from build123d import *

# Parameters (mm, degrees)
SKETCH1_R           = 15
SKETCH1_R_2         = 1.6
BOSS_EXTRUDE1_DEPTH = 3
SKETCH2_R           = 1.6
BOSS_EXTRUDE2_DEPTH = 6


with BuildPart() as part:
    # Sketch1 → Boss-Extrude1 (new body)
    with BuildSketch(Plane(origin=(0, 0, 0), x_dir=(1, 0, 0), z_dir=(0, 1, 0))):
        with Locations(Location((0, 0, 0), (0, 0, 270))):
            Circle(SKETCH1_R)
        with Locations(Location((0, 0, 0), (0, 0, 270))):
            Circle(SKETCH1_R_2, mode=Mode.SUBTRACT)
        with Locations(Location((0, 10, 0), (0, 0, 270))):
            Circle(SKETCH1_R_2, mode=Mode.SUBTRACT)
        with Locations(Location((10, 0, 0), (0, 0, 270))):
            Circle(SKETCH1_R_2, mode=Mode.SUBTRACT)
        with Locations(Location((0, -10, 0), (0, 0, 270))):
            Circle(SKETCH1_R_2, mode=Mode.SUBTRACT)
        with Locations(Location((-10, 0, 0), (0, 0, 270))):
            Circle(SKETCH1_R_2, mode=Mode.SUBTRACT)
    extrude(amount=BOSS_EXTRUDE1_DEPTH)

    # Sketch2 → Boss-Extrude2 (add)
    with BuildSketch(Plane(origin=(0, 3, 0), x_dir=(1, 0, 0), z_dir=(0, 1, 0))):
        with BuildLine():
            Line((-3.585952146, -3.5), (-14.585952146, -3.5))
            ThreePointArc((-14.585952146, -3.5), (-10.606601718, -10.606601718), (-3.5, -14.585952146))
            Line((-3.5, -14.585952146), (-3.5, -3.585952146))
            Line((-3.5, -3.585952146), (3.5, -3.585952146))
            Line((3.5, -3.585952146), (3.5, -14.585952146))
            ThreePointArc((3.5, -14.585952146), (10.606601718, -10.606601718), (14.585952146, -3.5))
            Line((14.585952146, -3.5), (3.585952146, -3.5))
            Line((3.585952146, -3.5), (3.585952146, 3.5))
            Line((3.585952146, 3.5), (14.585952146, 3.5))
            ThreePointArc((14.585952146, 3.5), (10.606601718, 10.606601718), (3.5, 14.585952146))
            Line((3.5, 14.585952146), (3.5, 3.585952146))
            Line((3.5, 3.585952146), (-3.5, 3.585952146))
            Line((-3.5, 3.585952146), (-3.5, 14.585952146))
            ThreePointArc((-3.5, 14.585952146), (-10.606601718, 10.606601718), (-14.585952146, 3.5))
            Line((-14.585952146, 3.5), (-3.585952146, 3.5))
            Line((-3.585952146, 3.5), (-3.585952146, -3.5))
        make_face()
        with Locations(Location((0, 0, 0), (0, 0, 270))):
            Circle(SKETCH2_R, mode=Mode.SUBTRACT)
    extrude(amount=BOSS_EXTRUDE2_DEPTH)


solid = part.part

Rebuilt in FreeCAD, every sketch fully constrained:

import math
import FreeCAD as App
import Part
import Sketcher

doc = App.newDocument("Part")
body = doc.addObject("PartDesign::Body", "Body")

# Sketch on XZ plane
sketch1 = body.newObject("Sketcher::SketchObject", "Sketch")
sketch1.AttachmentSupport = (doc.getObject("XZ_Plane"), [""])
sketch1.MapMode = "FlatFace"
sketch1.addGeometry(Part.Circle(App.Vector(0, 0, 0), App.Vector(0, 0, 1), 15), False)
sketch1.addGeometry(Part.Circle(App.Vector(0, -10, 0), App.Vector(0, 0, 1), 1.6), False)
sketch1.addGeometry(Part.Circle(App.Vector(-10, 0, 0), App.Vector(0, 0, 1), 1.6), False)
sketch1.addGeometry(Part.Circle(App.Vector(10, 0, 0), App.Vector(0, 0, 1), 1.6), False)
sketch1.addGeometry(Part.Circle(App.Vector(0, 0, 0), App.Vector(0, 0, 1), 1.6), False)
sketch1.addGeometry(Part.Circle(App.Vector(0, 10, 0), App.Vector(0, 0, 1), 1.6), False)
sketch1.addConstraint(Sketcher.Constraint("Coincident", 0, 3, -1, 1))
sketch1.addConstraint(Sketcher.Constraint("Coincident", 4, 3, -1, 1))
sketch1.addConstraint(Sketcher.Constraint("Equal", 1, 2))
sketch1.addConstraint(Sketcher.Constraint("Equal", 2, 3))
sketch1.addConstraint(Sketcher.Constraint("Equal", 3, 4))
sketch1.addConstraint(Sketcher.Constraint("Equal", 4, 5))
sketch1.addConstraint(Sketcher.Constraint("Symmetric", 2, 3, 3, 3, -1, 1))
sketch1.addConstraint(Sketcher.Constraint("Symmetric", 1, 3, 5, 3, -1, 1))
sketch1.addConstraint(Sketcher.Constraint("PointOnObject", 1, 3, -2))
sketch1.addConstraint(Sketcher.Constraint("PointOnObject", 2, 3, -1))
sketch1.addConstraint(Sketcher.Constraint("Diameter", 0, 30.0))
sketch1.addConstraint(Sketcher.Constraint("Diameter", 1, 3.2))
sketch1.addConstraint(Sketcher.Constraint("DistanceY", 1, 3, -1, 1, 10.0))
sketch1.addConstraint(Sketcher.Constraint("DistanceX", 2, 3, -1, 1, 10.0))
pad1 = body.newObject("PartDesign::Pad", "Pad")
pad1.Profile = sketch1
pad1.Length = 3
pad1.Reversed = True

# Sketch on XZ plane
sketch2 = body.newObject("Sketcher::SketchObject", "Sketch001")
sketch2.AttachmentSupport = (doc.getObject("XZ_Plane"), [""])
sketch2.MapMode = "FlatFace"
sketch2.AttachmentOffset = App.Placement(App.Vector(0, 0, -3), App.Rotation())
sketch2.addGeometry(Part.LineSegment(App.Vector(-3.585952, 3.5, 0), App.Vector(-14.585952, 3.5, 0)), False)
sketch2.addGeometry(Part.ArcOfCircle(Part.Circle(App.Vector(0, 0, 0), App.Vector(0, 0, 1), 15), math.radians(103.493399), math.radians(166.506601)), False)
sketch2.addGeometry(Part.LineSegment(App.Vector(-3.5, 14.585952, 0), App.Vector(-3.5, 3.585952, 0)), False)
sketch2.addGeometry(Part.LineSegment(App.Vector(-3.5, 3.585952, 0), App.Vector(3.5, 3.585952, 0)), False)
sketch2.addGeometry(Part.LineSegment(App.Vector(3.5, 3.585952, 0), App.Vector(3.5, 14.585952, 0)), False)
sketch2.addGeometry(Part.ArcOfCircle(Part.Circle(App.Vector(0, 0, 0), App.Vector(0, 0, 1), 15), math.radians(13.493399), math.radians(76.506601)), False)
sketch2.addGeometry(Part.LineSegment(App.Vector(14.585952, 3.5, 0), App.Vector(3.585952, 3.5, 0)), False)
sketch2.addGeometry(Part.LineSegment(App.Vector(3.585952, 3.5, 0), App.Vector(3.585952, -3.5, 0)), False)
sketch2.addGeometry(Part.LineSegment(App.Vector(3.585952, -3.5, 0), App.Vector(14.585952, -3.5, 0)), False)
sketch2.addGeometry(Part.ArcOfCircle(Part.Circle(App.Vector(0, 0, 0), App.Vector(0, 0, 1), 15), math.radians(-76.506601), math.radians(-13.493399)), False)
sketch2.addGeometry(Part.LineSegment(App.Vector(3.5, -14.585952, 0), App.Vector(3.5, -3.585952, 0)), False)
sketch2.addGeometry(Part.LineSegment(App.Vector(3.5, -3.585952, 0), App.Vector(-3.5, -3.585952, 0)), False)
sketch2.addGeometry(Part.LineSegment(App.Vector(-3.5, -3.585952, 0), App.Vector(-3.5, -14.585952, 0)), False)
sketch2.addGeometry(Part.ArcOfCircle(Part.Circle(App.Vector(0, 0, 0), App.Vector(0, 0, 1), 15), math.radians(-166.506601), math.radians(-103.493399)), False)
sketch2.addGeometry(Part.LineSegment(App.Vector(-14.585952, -3.5, 0), App.Vector(-3.585952, -3.5, 0)), False)
sketch2.addGeometry(Part.LineSegment(App.Vector(-3.585952, -3.5, 0), App.Vector(-3.585952, 3.5, 0)), False)
sketch2.addGeometry(Part.Circle(App.Vector(0, 0, 0), App.Vector(0, 0, 1), 1.6), False)
sketch2.addConstraint(Sketcher.Constraint("Coincident", 0, 2, 1, 2))
sketch2.addConstraint(Sketcher.Constraint("Coincident", 1, 1, 2, 1))
sketch2.addConstraint(Sketcher.Constraint("Coincident", 2, 2, 3, 1))
sketch2.addConstraint(Sketcher.Constraint("Coincident", 3, 2, 4, 1))
sketch2.addConstraint(Sketcher.Constraint("Coincident", 4, 2, 5, 2))
sketch2.addConstraint(Sketcher.Constraint("Coincident", 5, 1, 6, 1))
sketch2.addConstraint(Sketcher.Constraint("Coincident", 6, 2, 7, 1))
sketch2.addConstraint(Sketcher.Constraint("Coincident", 7, 2, 8, 1))
sketch2.addConstraint(Sketcher.Constraint("Coincident", 8, 2, 9, 2))
sketch2.addConstraint(Sketcher.Constraint("Coincident", 9, 1, 10, 1))
sketch2.addConstraint(Sketcher.Constraint("Coincident", 10, 2, 11, 1))
sketch2.addConstraint(Sketcher.Constraint("Coincident", 11, 2, 12, 1))
sketch2.addConstraint(Sketcher.Constraint("Coincident", 12, 2, 13, 2))
sketch2.addConstraint(Sketcher.Constraint("Coincident", 13, 1, 14, 1))
sketch2.addConstraint(Sketcher.Constraint("Coincident", 14, 2, 15, 1))
sketch2.addConstraint(Sketcher.Constraint("Coincident", 15, 2, 0, 1))
sketch2.addConstraint(Sketcher.Constraint("Horizontal", 0))
sketch2.addConstraint(Sketcher.Constraint("Vertical", 2))
sketch2.addConstraint(Sketcher.Constraint("Horizontal", 3))
sketch2.addConstraint(Sketcher.Constraint("Vertical", 4))
sketch2.addConstraint(Sketcher.Constraint("Horizontal", 6))
sketch2.addConstraint(Sketcher.Constraint("Vertical", 7))
sketch2.addConstraint(Sketcher.Constraint("Horizontal", 8))
sketch2.addConstraint(Sketcher.Constraint("Vertical", 10))
sketch2.addConstraint(Sketcher.Constraint("Horizontal", 11))
sketch2.addConstraint(Sketcher.Constraint("Vertical", 12))
sketch2.addConstraint(Sketcher.Constraint("Horizontal", 14))
sketch2.addConstraint(Sketcher.Constraint("Vertical", 15))
sketch2.addConstraint(Sketcher.Constraint("Coincident", 1, 3, -1, 1))
sketch2.addConstraint(Sketcher.Constraint("Coincident", 5, 3, -1, 1))
sketch2.addConstraint(Sketcher.Constraint("Coincident", 9, 3, -1, 1))
sketch2.addConstraint(Sketcher.Constraint("Coincident", 13, 3, -1, 1))
sketch2.addConstraint(Sketcher.Constraint("Coincident", 16, 3, -1, 1))
sketch2.addConstraint(Sketcher.Constraint("Equal", 1, 5))
sketch2.addConstraint(Sketcher.Constraint("Equal", 5, 9))
sketch2.addConstraint(Sketcher.Constraint("Equal", 9, 13))
sketch2.addConstraint(Sketcher.Constraint("Symmetric", 2, 2, 10, 2, -1, 1))
sketch2.addConstraint(Sketcher.Constraint("Symmetric", 6, 2, 14, 2, -1, 1))
sketch2.addConstraint(Sketcher.Constraint("Horizontal", 1, 1, 4, 2))
sketch2.addConstraint(Sketcher.Constraint("Horizontal", 0, 2, 5, 1))
sketch2.addConstraint(Sketcher.Constraint("Horizontal", 9, 1, 12, 2))
sketch2.addConstraint(Sketcher.Constraint("Horizontal", 8, 2, 13, 1))
sketch2.addConstraint(Sketcher.Constraint("Equal", 14, 2))
sketch2.addConstraint(Sketcher.Constraint("Equal", 11, 7))
sketch2.addConstraint(Sketcher.Constraint("Radius", 1, 15.0))
sketch2.addConstraint(Sketcher.Constraint("Diameter", 16, 3.2))
sketch2.addConstraint(Sketcher.Constraint("DistanceX", 0, 2, 0, 1, 11.0))
sketch2.addConstraint(Sketcher.Constraint("DistanceX", 3, 1, 3, 2, 7.0))
pad2 = body.newObject("PartDesign::Pad", "Pad001")
pad2.Profile = sketch2
pad2.Length = 6
pad2.Reversed = True

doc.recompute()
